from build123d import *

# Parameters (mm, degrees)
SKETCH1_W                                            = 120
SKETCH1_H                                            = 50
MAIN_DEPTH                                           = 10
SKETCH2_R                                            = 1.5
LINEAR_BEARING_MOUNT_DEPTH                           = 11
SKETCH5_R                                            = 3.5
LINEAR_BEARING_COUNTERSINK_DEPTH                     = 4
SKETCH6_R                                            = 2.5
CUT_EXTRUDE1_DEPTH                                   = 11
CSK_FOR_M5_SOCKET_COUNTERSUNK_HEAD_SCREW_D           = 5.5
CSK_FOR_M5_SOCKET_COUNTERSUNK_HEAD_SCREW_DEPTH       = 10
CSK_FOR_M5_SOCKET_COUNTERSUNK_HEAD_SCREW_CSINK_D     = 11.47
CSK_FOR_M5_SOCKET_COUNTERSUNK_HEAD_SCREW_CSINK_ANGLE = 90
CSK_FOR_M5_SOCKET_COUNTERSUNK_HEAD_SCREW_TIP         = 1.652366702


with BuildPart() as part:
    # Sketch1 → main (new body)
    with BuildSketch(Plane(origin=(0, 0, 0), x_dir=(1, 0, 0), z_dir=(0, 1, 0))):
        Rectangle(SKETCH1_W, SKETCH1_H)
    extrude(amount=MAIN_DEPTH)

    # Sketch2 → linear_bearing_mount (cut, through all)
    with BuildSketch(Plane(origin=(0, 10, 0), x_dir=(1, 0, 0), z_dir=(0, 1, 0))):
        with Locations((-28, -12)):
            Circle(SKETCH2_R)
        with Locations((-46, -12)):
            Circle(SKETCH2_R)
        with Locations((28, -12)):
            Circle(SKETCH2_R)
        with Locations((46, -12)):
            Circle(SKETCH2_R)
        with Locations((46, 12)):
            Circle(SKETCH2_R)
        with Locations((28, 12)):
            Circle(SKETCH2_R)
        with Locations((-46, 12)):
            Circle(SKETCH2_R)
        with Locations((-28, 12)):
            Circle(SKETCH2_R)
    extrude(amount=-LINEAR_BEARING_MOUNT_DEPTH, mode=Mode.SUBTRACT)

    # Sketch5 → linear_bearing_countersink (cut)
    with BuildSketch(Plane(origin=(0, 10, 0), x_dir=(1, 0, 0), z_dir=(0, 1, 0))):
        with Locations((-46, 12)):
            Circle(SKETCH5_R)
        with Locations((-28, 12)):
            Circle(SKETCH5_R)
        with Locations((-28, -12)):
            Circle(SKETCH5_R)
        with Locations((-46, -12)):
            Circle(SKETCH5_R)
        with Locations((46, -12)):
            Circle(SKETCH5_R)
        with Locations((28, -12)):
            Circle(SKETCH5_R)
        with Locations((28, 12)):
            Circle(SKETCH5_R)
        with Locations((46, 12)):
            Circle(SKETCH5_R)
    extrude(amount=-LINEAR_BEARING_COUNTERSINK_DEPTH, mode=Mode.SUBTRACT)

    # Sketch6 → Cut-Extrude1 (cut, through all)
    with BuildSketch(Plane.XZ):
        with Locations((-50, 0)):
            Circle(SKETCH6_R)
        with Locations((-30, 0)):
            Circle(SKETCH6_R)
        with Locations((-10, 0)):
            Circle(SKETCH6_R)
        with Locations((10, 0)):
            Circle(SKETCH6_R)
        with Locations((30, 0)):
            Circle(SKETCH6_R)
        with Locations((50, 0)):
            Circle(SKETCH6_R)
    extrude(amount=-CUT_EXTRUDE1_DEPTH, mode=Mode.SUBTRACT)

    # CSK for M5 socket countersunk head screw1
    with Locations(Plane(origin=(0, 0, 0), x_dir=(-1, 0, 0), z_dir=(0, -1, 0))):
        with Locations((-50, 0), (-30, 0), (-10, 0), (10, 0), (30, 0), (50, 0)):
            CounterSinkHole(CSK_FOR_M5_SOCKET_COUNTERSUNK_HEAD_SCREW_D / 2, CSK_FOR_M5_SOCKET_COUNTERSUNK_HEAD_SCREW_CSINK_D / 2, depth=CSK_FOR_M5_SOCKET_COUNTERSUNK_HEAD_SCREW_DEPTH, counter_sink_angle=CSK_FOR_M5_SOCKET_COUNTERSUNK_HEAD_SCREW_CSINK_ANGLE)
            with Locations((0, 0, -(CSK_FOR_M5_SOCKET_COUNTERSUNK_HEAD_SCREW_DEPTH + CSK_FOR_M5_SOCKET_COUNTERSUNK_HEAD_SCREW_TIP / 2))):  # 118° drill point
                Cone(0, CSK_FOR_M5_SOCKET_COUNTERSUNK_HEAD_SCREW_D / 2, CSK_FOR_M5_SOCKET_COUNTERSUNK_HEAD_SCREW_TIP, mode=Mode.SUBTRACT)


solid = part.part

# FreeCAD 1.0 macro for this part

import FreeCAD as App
import Part
import Sketcher
Q = App.Units.Quantity


def add_polygon(sketch, points):
    """Adds a closed chain of lines whose ends are joined by coincident constraints."""
    first, n = sketch.GeometryCount, len(points)
    for a, b in zip(points, points[1:] + points[:1]):
        sketch.addGeometry(Part.LineSegment(App.Vector(*a, 0), App.Vector(*b, 0)), False)
    for i in range(n):
        sketch.addConstraint(Sketcher.Constraint("Coincident", first + i, 2, first + (i + 1) % n, 1))

doc = App.newDocument("Part")
body = doc.addObject("PartDesign::Body", "Body")

# Sketch on XZ plane
sketch1 = body.newObject("Sketcher::SketchObject", "Sketch")
sketch1.AttachmentSupport = (doc.getObject("XZ_Plane"), [""])
sketch1.MapMode = "FlatFace"
add_polygon(sketch1, [(-60, -25), (-60, 25), (60, 25), (60, -25)])  # lines 0-3
sketch1.addConstraint([
    Sketcher.Constraint("Vertical", 0),
    Sketcher.Constraint("Horizontal", 1),
    Sketcher.Constraint("Vertical", 2),
    Sketcher.Constraint("Horizontal", 3),
    Sketcher.Constraint("Symmetric", 0, 2, 2, 2, -1, 1),
    Sketcher.Constraint("DistanceX", 1, 1, 1, 2, Q("120 mm")),
    Sketcher.Constraint("DistanceY", 0, 1, 0, 2, Q("50 mm")),
])
pad1 = body.newObject("PartDesign::Pad", "Pad")
pad1.Profile = sketch1
pad1.Length = 10
pad1.Reversed = True

# Sketch on XZ plane
sketch2 = body.newObject("Sketcher::SketchObject", "Sketch001")
sketch2.AttachmentSupport = (doc.getObject("XZ_Plane"), [""])
sketch2.MapMode = "FlatFace"
sketch2.AttachmentOffset = App.Placement(App.Vector(0, 0, -10), App.Rotation())
sketch2.addGeometry([
    Part.Circle(App.Vector(-28, 12, 0), App.Vector(0, 0, 1), 1.5),  # 0
    Part.Circle(App.Vector(-46, 12, 0), App.Vector(0, 0, 1), 1.5),  # 1
    Part.Circle(App.Vector(28, 12, 0), App.Vector(0, 0, 1), 1.5),  # 2
    Part.Circle(App.Vector(46, 12, 0), App.Vector(0, 0, 1), 1.5),  # 3
    Part.Circle(App.Vector(46, -12, 0), App.Vector(0, 0, 1), 1.5),  # 4
    Part.Circle(App.Vector(28, -12, 0), App.Vector(0, 0, 1), 1.5),  # 5
    Part.Circle(App.Vector(-46, -12, 0), App.Vector(0, 0, 1), 1.5),  # 6
    Part.Circle(App.Vector(-28, -12, 0), App.Vector(0, 0, 1), 1.5),  # 7
], False)
sketch2.addConstraint([
    Sketcher.Constraint("Equal", 0, 1),
    Sketcher.Constraint("Equal", 1, 2),
    Sketcher.Constraint("Equal", 2, 3),
    Sketcher.Constraint("Equal", 3, 4),
    Sketcher.Constraint("Equal", 4, 5),
    Sketcher.Constraint("Equal", 5, 6),
    Sketcher.Constraint("Equal", 6, 7),
    Sketcher.Constraint("Symmetric", 1, 3, 4, 3, -1, 1),
    Sketcher.Constraint("Symmetric", 0, 3, 5, 3, -1, 1),
    Sketcher.Constraint("Symmetric", 3, 3, 6, 3, -1, 1),
    Sketcher.Constraint("Symmetric", 2, 3, 7, 3, -1, 1),
    Sketcher.Constraint("Symmetric", 0, 3, 2, 3, -2),
    Sketcher.Constraint("Symmetric", 1, 3, 3, 3, -2),
    Sketcher.Constraint("Horizontal", 0, 3, 1, 3),
    Sketcher.Constraint("Diameter", 0, Q("3 mm")),
    Sketcher.Constraint("DistanceX", 0, 3, -1, 1, Q("28 mm")),
    Sketcher.Constraint("DistanceY", -1, 1, 0, 3, Q("12 mm")),
    Sketcher.Constraint("DistanceX", 1, 3, -1, 1, Q("46 mm")),
])
pocket1 = body.newObject("PartDesign::Pocket", "Pocket")
pocket1.Profile = sketch2
pocket1.Type = "ThroughAll"
pocket1.Reversed = True

# Sketch on XZ plane
sketch3 = body.newObject("Sketcher::SketchObject", "Sketch002")
sketch3.AttachmentSupport = (doc.getObject("XZ_Plane"), [""])
sketch3.MapMode = "FlatFace"
sketch3.AttachmentOffset = App.Placement(App.Vector(0, 0, -10), App.Rotation())
sketch3.addGeometry([
    Part.Circle(App.Vector(-46, -12, 0), App.Vector(0, 0, 1), 3.5),  # 0
    Part.Circle(App.Vector(-28, -12, 0), App.Vector(0, 0, 1), 3.5),  # 1
    Part.Circle(App.Vector(-28, 12, 0), App.Vector(0, 0, 1), 3.5),  # 2
    Part.Circle(App.Vector(-46, 12, 0), App.Vector(0, 0, 1), 3.5),  # 3
    Part.Circle(App.Vector(46, 12, 0), App.Vector(0, 0, 1), 3.5),  # 4
    Part.Circle(App.Vector(28, 12, 0), App.Vector(0, 0, 1), 3.5),  # 5
    Part.Circle(App.Vector(28, -12, 0), App.Vector(0, 0, 1), 3.5),  # 6
    Part.Circle(App.Vector(46, -12, 0), App.Vector(0, 0, 1), 3.5),  # 7
], False)
sketch3.addConstraint([
    Sketcher.Constraint("Equal", 0, 1),
    Sketcher.Constraint("Equal", 1, 2),
    Sketcher.Constraint("Equal", 2, 3),
    Sketcher.Constraint("Equal", 3, 4),
    Sketcher.Constraint("Equal", 4, 5),
    Sketcher.Constraint("Equal", 5, 6),
    Sketcher.Constraint("Equal", 6, 7),
    Sketcher.Constraint("Symmetric", 0, 3, 4, 3, -1, 1),
    Sketcher.Constraint("Symmetric", 1, 3, 5, 3, -1, 1),
    Sketcher.Constraint("Symmetric", 2, 3, 6, 3, -1, 1),
    Sketcher.Constraint("Symmetric", 3, 3, 7, 3, -1, 1),
    Sketcher.Constraint("Symmetric", 3, 3, 4, 3, -2),
    Sketcher.Constraint("Symmetric", 2, 3, 5, 3, -2),
    Sketcher.Constraint("Horizontal", 0, 3, 1, 3),
    Sketcher.Constraint("Diameter", 0, Q("7 mm")),
    Sketcher.Constraint("DistanceX", 0, 3, -1, 1, Q("46 mm")),
    Sketcher.Constraint("DistanceY", 0, 3, -1, 1, Q("12 mm")),
    Sketcher.Constraint("DistanceX", 1, 3, -1, 1, Q("28 mm")),
])
pocket2 = body.newObject("PartDesign::Pocket", "Pocket001")
pocket2.Profile = sketch3
pocket2.Length = 4
pocket2.Reversed = True

# Sketch on XZ plane
sketch4 = body.newObject("Sketcher::SketchObject", "Sketch003")
sketch4.AttachmentSupport = (doc.getObject("XZ_Plane"), [""])
sketch4.MapMode = "FlatFace"
sketch4.addGeometry([
    Part.Circle(App.Vector(-50, 0, 0), App.Vector(0, 0, 1), 2.5),  # 0
    Part.Circle(App.Vector(-30, 0, 0), App.Vector(0, 0, 1), 2.5),  # 1
    Part.Circle(App.Vector(-10, 0, 0), App.Vector(0, 0, 1), 2.5),  # 2
    Part.Circle(App.Vector(10, 0, 0), App.Vector(0, 0, 1), 2.5),  # 3
    Part.Circle(App.Vector(30, 0, 0), App.Vector(0, 0, 1), 2.5),  # 4
    Part.Circle(App.Vector(50, 0, 0), App.Vector(0, 0, 1), 2.5),  # 5
], False)
sketch4.addConstraint([
    Sketcher.Constraint("Equal", 0, 1),
    Sketcher.Constraint("Equal", 1, 2),
    Sketcher.Constraint("Equal", 2, 3),
    Sketcher.Constraint("Equal", 3, 4),
    Sketcher.Constraint("Equal", 4, 5),
    Sketcher.Constraint("Symmetric", 2, 3, 3, 3, -1, 1),
    Sketcher.Constraint("Symmetric", 1, 3, 4, 3, -1, 1),
    Sketcher.Constraint("Symmetric", 0, 3, 5, 3, -1, 1),
    Sketcher.Constraint("PointOnObject", 0, 3, -1),
    Sketcher.Constraint("PointOnObject", 1, 3, -1),
    Sketcher.Constraint("PointOnObject", 2, 3, -1),
    Sketcher.Constraint("Diameter", 0, Q("5 mm")),
    Sketcher.Constraint("DistanceX", 0, 3, -1, 1, Q("50 mm")),
    Sketcher.Constraint("DistanceX", 1, 3, -1, 1, Q("30 mm")),
    Sketcher.Constraint("DistanceX", 2, 3, -1, 1, Q("10 mm")),
])
pocket3 = body.newObject("PartDesign::Pocket", "Pocket002")
pocket3.Profile = sketch4
pocket3.Type = "ThroughAll"

# Sketch on XZ plane
sketch5 = body.newObject("Sketcher::SketchObject", "Sketch004")
sketch5.AttachmentSupport = (doc.getObject("XZ_Plane"), [""])
sketch5.MapMode = "FlatFace"
sketch5.addGeometry([
    Part.Circle(App.Vector(50, 0, 0), App.Vector(0, 0, 1), 2.8),  # 0
    Part.Circle(App.Vector(30, 0, 0), App.Vector(0, 0, 1), 2.8),  # 1
    Part.Circle(App.Vector(10, 0, 0), App.Vector(0, 0, 1), 2.8),  # 2
    Part.Circle(App.Vector(-10, 0, 0), App.Vector(0, 0, 1), 2.8),  # 3
    Part.Circle(App.Vector(-30, 0, 0), App.Vector(0, 0, 1), 2.8),  # 4
    Part.Circle(App.Vector(-50, 0, 0), App.Vector(0, 0, 1), 2.8),  # 5
], False)
sketch5.addConstraint([
    Sketcher.Constraint("Equal", 0, 1),
    Sketcher.Constraint("Equal", 1, 2),
    Sketcher.Constraint("Equal", 2, 3),
    Sketcher.Constraint("Equal", 3, 4),
    Sketcher.Constraint("Equal", 4, 5),
    Sketcher.Constraint("Symmetric", 2, 3, 3, 3, -1, 1),
    Sketcher.Constraint("Symmetric", 1, 3, 4, 3, -1, 1),
    Sketcher.Constraint("Symmetric", 0, 3, 5, 3, -1, 1),
    Sketcher.Constraint("PointOnObject", 0, 3, -1),
    Sketcher.Constraint("PointOnObject", 1, 3, -1),
    Sketcher.Constraint("PointOnObject", 2, 3, -1),
    Sketcher.Constraint("Diameter", 0, Q("5.5 mm")),
    Sketcher.Constraint("DistanceX", -1, 1, 0, 3, Q("50 mm")),
    Sketcher.Constraint("DistanceX", -1, 1, 1, 3, Q("30 mm")),
    Sketcher.Constraint("DistanceX", -1, 1, 2, 3, Q("10 mm")),
])
doc.recompute()
hole = body.newObject("PartDesign::Hole", "Hole")
hole.Profile = sketch5
hole.ThreadType = "None"
hole.Diameter = 5.5
hole.DepthType = "Dimension"
hole.Depth = 10
hole.DrillPoint = "Angled"
hole.DrillPointAngle = 118
hole.HoleCutType = "Countersink"
hole.HoleCutDiameter = 11.47
hole.HoleCutCountersinkAngle = 90

doc.recompute()
